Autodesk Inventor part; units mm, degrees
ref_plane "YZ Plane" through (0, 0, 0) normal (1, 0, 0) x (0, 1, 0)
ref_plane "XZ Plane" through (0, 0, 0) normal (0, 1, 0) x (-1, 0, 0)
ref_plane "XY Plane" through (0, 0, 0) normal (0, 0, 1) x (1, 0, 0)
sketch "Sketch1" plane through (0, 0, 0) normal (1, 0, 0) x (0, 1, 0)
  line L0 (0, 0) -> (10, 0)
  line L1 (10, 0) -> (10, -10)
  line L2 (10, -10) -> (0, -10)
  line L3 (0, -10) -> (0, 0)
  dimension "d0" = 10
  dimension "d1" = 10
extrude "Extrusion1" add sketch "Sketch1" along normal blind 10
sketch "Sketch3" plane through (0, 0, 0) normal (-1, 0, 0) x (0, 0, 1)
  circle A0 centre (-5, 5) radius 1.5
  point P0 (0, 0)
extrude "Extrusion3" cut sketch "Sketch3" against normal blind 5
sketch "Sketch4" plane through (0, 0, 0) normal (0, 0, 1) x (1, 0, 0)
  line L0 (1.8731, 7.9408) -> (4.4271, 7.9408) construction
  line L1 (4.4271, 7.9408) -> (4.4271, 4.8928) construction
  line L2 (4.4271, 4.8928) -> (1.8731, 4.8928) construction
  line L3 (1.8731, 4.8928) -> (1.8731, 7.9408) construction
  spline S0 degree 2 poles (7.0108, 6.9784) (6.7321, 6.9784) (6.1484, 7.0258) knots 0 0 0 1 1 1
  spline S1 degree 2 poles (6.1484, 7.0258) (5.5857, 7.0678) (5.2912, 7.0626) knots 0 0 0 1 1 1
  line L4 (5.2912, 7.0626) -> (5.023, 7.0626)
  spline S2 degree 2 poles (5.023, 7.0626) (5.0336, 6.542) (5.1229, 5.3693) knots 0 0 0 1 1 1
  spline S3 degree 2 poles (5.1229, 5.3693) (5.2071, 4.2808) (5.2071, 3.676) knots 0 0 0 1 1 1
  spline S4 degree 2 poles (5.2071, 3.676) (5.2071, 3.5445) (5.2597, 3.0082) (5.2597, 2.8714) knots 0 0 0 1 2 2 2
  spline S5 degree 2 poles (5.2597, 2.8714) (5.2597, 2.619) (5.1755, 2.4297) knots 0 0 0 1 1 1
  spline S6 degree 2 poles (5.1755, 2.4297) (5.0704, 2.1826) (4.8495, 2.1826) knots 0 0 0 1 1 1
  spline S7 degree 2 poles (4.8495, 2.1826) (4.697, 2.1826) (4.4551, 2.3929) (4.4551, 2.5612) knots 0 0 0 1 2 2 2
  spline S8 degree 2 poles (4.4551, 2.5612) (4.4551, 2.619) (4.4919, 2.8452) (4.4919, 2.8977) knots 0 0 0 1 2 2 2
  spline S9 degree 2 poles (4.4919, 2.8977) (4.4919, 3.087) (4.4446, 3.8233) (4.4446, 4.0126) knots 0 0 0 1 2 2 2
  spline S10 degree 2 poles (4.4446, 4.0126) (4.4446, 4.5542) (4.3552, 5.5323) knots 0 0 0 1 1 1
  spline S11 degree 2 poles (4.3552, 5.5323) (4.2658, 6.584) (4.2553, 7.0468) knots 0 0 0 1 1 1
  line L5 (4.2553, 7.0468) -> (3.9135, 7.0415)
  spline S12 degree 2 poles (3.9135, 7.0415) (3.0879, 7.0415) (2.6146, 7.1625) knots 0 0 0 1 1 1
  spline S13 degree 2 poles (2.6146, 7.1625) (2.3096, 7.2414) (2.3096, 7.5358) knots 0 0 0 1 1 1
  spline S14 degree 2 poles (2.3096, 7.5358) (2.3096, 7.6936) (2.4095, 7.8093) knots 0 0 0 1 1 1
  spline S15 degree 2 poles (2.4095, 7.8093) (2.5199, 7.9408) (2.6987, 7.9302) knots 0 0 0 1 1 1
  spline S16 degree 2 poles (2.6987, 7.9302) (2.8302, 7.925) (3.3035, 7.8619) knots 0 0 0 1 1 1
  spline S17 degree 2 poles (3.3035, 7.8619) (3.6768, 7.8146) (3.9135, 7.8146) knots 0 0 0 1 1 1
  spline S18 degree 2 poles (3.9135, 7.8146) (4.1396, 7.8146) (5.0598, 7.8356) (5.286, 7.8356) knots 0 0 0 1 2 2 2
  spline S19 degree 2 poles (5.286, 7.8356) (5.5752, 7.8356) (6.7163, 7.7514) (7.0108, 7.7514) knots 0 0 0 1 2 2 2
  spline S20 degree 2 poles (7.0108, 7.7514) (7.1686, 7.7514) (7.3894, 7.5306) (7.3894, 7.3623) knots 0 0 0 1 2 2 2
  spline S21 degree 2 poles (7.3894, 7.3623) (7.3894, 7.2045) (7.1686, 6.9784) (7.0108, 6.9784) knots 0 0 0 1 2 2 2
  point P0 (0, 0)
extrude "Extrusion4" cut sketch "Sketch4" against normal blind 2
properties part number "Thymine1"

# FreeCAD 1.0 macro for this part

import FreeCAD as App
import Part
import Sketcher

V = App.Vector

doc = App.newDocument("Part")
body = doc.addObject("PartDesign::Body", "Body")

sketch1 = doc.addObject("Sketcher::SketchObject", "Sketch")
body.addObject(sketch1)
sketch1.AttachmentSupport = (doc.YZ_Plane, [""])
sketch1.MapMode = "FlatFace"
sketch1.addGeometry([
    Part.LineSegment(V(10, 0, 0), V(0, 0, 0)),
    Part.LineSegment(V(0, 0, 0), V(0, -10, 0)),
    Part.LineSegment(V(0, -10, 0), V(10, -10, 0)),
    Part.LineSegment(V(10, -10, 0), V(10, 0, 0)),
], False)
sketch1.addConstraint([
    Sketcher.Constraint("Coincident", 0, 2, 1, 1),
    Sketcher.Constraint("Coincident", 1, 2, 2, 1),
    Sketcher.Constraint("Coincident", 2, 2, 3, 1),
    Sketcher.Constraint("Coincident", 3, 2, 0, 1),
    Sketcher.Constraint("Horizontal", 0),
    Sketcher.Constraint("Vertical", 1),
    Sketcher.Constraint("Horizontal", 2),
    Sketcher.Constraint("Vertical", 3),
    Sketcher.Constraint("Coincident", 0, 2, -1, 1),
    Sketcher.Constraint("Equal", 2, 1),
    Sketcher.Constraint("DistanceX", 0, 2, 0, 1, 10.0),
])
pad1 = doc.addObject("PartDesign::Pad", "Pad")
body.addObject(pad1)
pad1.Profile = sketch1
pad1.Length = 10

sketch2 = doc.addObject("Sketcher::SketchObject", "Sketch001")
body.addObject(sketch2)
sketch2.AttachmentSupport = (doc.YZ_Plane, [""])
sketch2.MapMode = "FlatFace"
sketch2.addGeometry(Part.Circle(V(5, -5, 0), V(0, 0, 1), 1.5), False)
sketch2.addConstraint([
    Sketcher.Constraint("Diameter", 0, 3.0),
    Sketcher.Constraint("DistanceX", -1, 1, 0, 3, 5.0),
    Sketcher.Constraint("DistanceY", 0, 3, -1, 1, 5.0),
])
pocket1 = doc.addObject("PartDesign::Pocket", "Pocket")
body.addObject(pocket1)
pocket1.Profile = sketch2
pocket1.Length = 5
pocket1.Reversed = True

sketch3 = doc.addObject("Sketcher::SketchObject", "Sketch002")
body.addObject(sketch3)
sketch3.AttachmentSupport = (doc.XY_Plane, [""])
sketch3.MapMode = "FlatFace"
sketch3.addGeometry([
    Part.BSplineCurve([V(7.0108, 6.9784, 0), V(6.7321, 6.9784, 0), V(6.1484, 7.0258, 0)], [3, 3], [0, 1], False, 2, [1, 1, 1], False),
    Part.BSplineCurve([V(7.3894, 7.3623, 0), V(7.3894, 7.2045, 0), V(7.1686, 6.9784, 0), V(7.0108, 6.9784, 0)], [3, 1, 3], [0, 1, 2], False, 2, [1, 1, 1, 1], False),
    Part.BSplineCurve([V(7.0108, 7.7514, 0), V(7.1686, 7.7514, 0), V(7.3894, 7.5306, 0), V(7.3894, 7.3623, 0)], [3, 1, 3], [0, 1, 2], False, 2, [1, 1, 1, 1], False),
    Part.BSplineCurve([V(5.286, 7.8356, 0), V(5.5752, 7.8356, 0), V(6.7163, 7.7514, 0), V(7.0108, 7.7514, 0)], [3, 1, 3], [0, 1, 2], False, 2, [1, 1, 1, 1], False),
    Part.BSplineCurve([V(3.9135, 7.8146, 0), V(4.1396, 7.8146, 0), V(5.0598, 7.8356, 0), V(5.286, 7.8356, 0)], [3, 1, 3], [0, 1, 2], False, 2, [1, 1, 1, 1], False),
    Part.BSplineCurve([V(3.3035, 7.8619, 0), V(3.6768, 7.8146, 0), V(3.9135, 7.8146, 0)], [3, 3], [0, 1], False, 2, [1, 1, 1], False),
    Part.BSplineCurve([V(2.6987, 7.9302, 0), V(2.8302, 7.925, 0), V(3.3035, 7.8619, 0)], [3, 3], [0, 1], False, 2, [1, 1, 1], False),
    Part.BSplineCurve([V(2.4095, 7.8093, 0), V(2.5199, 7.9408, 0), V(2.6987, 7.9302, 0)], [3, 3], [0, 1], False, 2, [1, 1, 1], False),
    Part.BSplineCurve([V(2.3096, 7.5358, 0), V(2.3096, 7.6936, 0), V(2.4095, 7.8093, 0)], [3, 3], [0, 1], False, 2, [1, 1, 1], False),
    Part.BSplineCurve([V(2.6146, 7.1625, 0), V(2.3096, 7.2414, 0), V(2.3096, 7.5358, 0)], [3, 3], [0, 1], False, 2, [1, 1, 1], False),
    Part.BSplineCurve([V(3.9135, 7.0415, 0), V(3.0879, 7.0415, 0), V(2.6146, 7.1625, 0)], [3, 3], [0, 1], False, 2, [1, 1, 1], False),
    Part.LineSegment(V(3.9135, 7.0415, 0), V(4.2553, 7.0468, 0)),
    Part.BSplineCurve([V(4.3552, 5.5323, 0), V(4.2658, 6.584, 0), V(4.2553, 7.0468, 0)], [3, 3], [0, 1], False, 2, [1, 1, 1], False),
    Part.BSplineCurve([V(4.4446, 4.0126, 0), V(4.4446, 4.5542, 0), V(4.3552, 5.5323, 0)], [3, 3], [0, 1], False, 2, [1, 1, 1], False),
    Part.BSplineCurve([V(4.4919, 2.8977, 0), V(4.4919, 3.087, 0), V(4.4446, 3.8233, 0), V(4.4446, 4.0126, 0)], [3, 1, 3], [0, 1, 2], False, 2, [1, 1, 1, 1], False),
    Part.BSplineCurve([V(4.4551, 2.5612, 0), V(4.4551, 2.619, 0), V(4.4919, 2.8452, 0), V(4.4919, 2.8977, 0)], [3, 1, 3], [0, 1, 2], False, 2, [1, 1, 1, 1], False),
    Part.BSplineCurve([V(4.8495, 2.1826, 0), V(4.697, 2.1826, 0), V(4.4551, 2.3929, 0), V(4.4551, 2.5612, 0)], [3, 1, 3], [0, 1, 2], False, 2, [1, 1, 1, 1], False),
    Part.BSplineCurve([V(5.1755, 2.4297, 0), V(5.0704, 2.1826, 0), V(4.8495, 2.1826, 0)], [3, 3], [0, 1], False, 2, [1, 1, 1], False),
    Part.BSplineCurve([V(5.2597, 2.8714, 0), V(5.2597, 2.619, 0), V(5.1755, 2.4297, 0)], [3, 3], [0, 1], False, 2, [1, 1, 1], False),
    Part.BSplineCurve([V(5.2071, 3.676, 0), V(5.2071, 3.5445, 0), V(5.2597, 3.0082, 0), V(5.2597, 2.8714, 0)], [3, 1, 3], [0, 1, 2], False, 2, [1, 1, 1, 1], False),
    Part.BSplineCurve([V(5.1229, 5.3693, 0), V(5.2071, 4.2808, 0), V(5.2071, 3.676, 0)], [3, 3], [0, 1], False, 2, [1, 1, 1], False),
    Part.BSplineCurve([V(5.023, 7.0626, 0), V(5.0336, 6.542, 0), V(5.1229, 5.3693, 0)], [3, 3], [0, 1], False, 2, [1, 1, 1], False),
    Part.LineSegment(V(5.023, 7.0626, 0), V(5.2912, 7.0626, 0)),
    Part.BSplineCurve([V(6.1484, 7.0258, 0), V(5.5857, 7.0678, 0), V(5.2912, 7.0626, 0)], [3, 3], [0, 1], False, 2, [1, 1, 1], False),
], False)
sketch3.addConstraint([
    Sketcher.Constraint("Block", 0),
    Sketcher.Constraint("Block", 1),
    Sketcher.Constraint("Block", 2),
    Sketcher.Constraint("Block", 3),
    Sketcher.Constraint("Block", 4),
    Sketcher.Constraint("Block", 5),
    Sketcher.Constraint("Block", 6),
    Sketcher.Constraint("Block", 7),
    Sketcher.Constraint("Block", 8),
    Sketcher.Constraint("Block", 9),
    Sketcher.Constraint("Block", 10),
    Sketcher.Constraint("Block", 12),
    Sketcher.Constraint("Block", 13),
    Sketcher.Constraint("Block", 14),
    Sketcher.Constraint("Block", 15),
    Sketcher.Constraint("Block", 16),
    Sketcher.Constraint("Block", 17),
    Sketcher.Constraint("Block", 18),
    Sketcher.Constraint("Block", 19),
    Sketcher.Constraint("Block", 20),
    Sketcher.Constraint("Block", 21),
    Sketcher.Constraint("Block", 23),
    Sketcher.Constraint("Coincident", 10, 1, 11, 1),
    Sketcher.Constraint("Coincident", 11, 2, 12, 2),
    Sketcher.Constraint("Coincident", 21, 1, 22, 1),
    Sketcher.Constraint("Coincident", 22, 2, 23, 2),
])
pocket2 = doc.addObject("PartDesign::Pocket", "Pocket001")
body.addObject(pocket2)
pocket2.Profile = sketch3
pocket2.Length = 2

doc.recompute()
